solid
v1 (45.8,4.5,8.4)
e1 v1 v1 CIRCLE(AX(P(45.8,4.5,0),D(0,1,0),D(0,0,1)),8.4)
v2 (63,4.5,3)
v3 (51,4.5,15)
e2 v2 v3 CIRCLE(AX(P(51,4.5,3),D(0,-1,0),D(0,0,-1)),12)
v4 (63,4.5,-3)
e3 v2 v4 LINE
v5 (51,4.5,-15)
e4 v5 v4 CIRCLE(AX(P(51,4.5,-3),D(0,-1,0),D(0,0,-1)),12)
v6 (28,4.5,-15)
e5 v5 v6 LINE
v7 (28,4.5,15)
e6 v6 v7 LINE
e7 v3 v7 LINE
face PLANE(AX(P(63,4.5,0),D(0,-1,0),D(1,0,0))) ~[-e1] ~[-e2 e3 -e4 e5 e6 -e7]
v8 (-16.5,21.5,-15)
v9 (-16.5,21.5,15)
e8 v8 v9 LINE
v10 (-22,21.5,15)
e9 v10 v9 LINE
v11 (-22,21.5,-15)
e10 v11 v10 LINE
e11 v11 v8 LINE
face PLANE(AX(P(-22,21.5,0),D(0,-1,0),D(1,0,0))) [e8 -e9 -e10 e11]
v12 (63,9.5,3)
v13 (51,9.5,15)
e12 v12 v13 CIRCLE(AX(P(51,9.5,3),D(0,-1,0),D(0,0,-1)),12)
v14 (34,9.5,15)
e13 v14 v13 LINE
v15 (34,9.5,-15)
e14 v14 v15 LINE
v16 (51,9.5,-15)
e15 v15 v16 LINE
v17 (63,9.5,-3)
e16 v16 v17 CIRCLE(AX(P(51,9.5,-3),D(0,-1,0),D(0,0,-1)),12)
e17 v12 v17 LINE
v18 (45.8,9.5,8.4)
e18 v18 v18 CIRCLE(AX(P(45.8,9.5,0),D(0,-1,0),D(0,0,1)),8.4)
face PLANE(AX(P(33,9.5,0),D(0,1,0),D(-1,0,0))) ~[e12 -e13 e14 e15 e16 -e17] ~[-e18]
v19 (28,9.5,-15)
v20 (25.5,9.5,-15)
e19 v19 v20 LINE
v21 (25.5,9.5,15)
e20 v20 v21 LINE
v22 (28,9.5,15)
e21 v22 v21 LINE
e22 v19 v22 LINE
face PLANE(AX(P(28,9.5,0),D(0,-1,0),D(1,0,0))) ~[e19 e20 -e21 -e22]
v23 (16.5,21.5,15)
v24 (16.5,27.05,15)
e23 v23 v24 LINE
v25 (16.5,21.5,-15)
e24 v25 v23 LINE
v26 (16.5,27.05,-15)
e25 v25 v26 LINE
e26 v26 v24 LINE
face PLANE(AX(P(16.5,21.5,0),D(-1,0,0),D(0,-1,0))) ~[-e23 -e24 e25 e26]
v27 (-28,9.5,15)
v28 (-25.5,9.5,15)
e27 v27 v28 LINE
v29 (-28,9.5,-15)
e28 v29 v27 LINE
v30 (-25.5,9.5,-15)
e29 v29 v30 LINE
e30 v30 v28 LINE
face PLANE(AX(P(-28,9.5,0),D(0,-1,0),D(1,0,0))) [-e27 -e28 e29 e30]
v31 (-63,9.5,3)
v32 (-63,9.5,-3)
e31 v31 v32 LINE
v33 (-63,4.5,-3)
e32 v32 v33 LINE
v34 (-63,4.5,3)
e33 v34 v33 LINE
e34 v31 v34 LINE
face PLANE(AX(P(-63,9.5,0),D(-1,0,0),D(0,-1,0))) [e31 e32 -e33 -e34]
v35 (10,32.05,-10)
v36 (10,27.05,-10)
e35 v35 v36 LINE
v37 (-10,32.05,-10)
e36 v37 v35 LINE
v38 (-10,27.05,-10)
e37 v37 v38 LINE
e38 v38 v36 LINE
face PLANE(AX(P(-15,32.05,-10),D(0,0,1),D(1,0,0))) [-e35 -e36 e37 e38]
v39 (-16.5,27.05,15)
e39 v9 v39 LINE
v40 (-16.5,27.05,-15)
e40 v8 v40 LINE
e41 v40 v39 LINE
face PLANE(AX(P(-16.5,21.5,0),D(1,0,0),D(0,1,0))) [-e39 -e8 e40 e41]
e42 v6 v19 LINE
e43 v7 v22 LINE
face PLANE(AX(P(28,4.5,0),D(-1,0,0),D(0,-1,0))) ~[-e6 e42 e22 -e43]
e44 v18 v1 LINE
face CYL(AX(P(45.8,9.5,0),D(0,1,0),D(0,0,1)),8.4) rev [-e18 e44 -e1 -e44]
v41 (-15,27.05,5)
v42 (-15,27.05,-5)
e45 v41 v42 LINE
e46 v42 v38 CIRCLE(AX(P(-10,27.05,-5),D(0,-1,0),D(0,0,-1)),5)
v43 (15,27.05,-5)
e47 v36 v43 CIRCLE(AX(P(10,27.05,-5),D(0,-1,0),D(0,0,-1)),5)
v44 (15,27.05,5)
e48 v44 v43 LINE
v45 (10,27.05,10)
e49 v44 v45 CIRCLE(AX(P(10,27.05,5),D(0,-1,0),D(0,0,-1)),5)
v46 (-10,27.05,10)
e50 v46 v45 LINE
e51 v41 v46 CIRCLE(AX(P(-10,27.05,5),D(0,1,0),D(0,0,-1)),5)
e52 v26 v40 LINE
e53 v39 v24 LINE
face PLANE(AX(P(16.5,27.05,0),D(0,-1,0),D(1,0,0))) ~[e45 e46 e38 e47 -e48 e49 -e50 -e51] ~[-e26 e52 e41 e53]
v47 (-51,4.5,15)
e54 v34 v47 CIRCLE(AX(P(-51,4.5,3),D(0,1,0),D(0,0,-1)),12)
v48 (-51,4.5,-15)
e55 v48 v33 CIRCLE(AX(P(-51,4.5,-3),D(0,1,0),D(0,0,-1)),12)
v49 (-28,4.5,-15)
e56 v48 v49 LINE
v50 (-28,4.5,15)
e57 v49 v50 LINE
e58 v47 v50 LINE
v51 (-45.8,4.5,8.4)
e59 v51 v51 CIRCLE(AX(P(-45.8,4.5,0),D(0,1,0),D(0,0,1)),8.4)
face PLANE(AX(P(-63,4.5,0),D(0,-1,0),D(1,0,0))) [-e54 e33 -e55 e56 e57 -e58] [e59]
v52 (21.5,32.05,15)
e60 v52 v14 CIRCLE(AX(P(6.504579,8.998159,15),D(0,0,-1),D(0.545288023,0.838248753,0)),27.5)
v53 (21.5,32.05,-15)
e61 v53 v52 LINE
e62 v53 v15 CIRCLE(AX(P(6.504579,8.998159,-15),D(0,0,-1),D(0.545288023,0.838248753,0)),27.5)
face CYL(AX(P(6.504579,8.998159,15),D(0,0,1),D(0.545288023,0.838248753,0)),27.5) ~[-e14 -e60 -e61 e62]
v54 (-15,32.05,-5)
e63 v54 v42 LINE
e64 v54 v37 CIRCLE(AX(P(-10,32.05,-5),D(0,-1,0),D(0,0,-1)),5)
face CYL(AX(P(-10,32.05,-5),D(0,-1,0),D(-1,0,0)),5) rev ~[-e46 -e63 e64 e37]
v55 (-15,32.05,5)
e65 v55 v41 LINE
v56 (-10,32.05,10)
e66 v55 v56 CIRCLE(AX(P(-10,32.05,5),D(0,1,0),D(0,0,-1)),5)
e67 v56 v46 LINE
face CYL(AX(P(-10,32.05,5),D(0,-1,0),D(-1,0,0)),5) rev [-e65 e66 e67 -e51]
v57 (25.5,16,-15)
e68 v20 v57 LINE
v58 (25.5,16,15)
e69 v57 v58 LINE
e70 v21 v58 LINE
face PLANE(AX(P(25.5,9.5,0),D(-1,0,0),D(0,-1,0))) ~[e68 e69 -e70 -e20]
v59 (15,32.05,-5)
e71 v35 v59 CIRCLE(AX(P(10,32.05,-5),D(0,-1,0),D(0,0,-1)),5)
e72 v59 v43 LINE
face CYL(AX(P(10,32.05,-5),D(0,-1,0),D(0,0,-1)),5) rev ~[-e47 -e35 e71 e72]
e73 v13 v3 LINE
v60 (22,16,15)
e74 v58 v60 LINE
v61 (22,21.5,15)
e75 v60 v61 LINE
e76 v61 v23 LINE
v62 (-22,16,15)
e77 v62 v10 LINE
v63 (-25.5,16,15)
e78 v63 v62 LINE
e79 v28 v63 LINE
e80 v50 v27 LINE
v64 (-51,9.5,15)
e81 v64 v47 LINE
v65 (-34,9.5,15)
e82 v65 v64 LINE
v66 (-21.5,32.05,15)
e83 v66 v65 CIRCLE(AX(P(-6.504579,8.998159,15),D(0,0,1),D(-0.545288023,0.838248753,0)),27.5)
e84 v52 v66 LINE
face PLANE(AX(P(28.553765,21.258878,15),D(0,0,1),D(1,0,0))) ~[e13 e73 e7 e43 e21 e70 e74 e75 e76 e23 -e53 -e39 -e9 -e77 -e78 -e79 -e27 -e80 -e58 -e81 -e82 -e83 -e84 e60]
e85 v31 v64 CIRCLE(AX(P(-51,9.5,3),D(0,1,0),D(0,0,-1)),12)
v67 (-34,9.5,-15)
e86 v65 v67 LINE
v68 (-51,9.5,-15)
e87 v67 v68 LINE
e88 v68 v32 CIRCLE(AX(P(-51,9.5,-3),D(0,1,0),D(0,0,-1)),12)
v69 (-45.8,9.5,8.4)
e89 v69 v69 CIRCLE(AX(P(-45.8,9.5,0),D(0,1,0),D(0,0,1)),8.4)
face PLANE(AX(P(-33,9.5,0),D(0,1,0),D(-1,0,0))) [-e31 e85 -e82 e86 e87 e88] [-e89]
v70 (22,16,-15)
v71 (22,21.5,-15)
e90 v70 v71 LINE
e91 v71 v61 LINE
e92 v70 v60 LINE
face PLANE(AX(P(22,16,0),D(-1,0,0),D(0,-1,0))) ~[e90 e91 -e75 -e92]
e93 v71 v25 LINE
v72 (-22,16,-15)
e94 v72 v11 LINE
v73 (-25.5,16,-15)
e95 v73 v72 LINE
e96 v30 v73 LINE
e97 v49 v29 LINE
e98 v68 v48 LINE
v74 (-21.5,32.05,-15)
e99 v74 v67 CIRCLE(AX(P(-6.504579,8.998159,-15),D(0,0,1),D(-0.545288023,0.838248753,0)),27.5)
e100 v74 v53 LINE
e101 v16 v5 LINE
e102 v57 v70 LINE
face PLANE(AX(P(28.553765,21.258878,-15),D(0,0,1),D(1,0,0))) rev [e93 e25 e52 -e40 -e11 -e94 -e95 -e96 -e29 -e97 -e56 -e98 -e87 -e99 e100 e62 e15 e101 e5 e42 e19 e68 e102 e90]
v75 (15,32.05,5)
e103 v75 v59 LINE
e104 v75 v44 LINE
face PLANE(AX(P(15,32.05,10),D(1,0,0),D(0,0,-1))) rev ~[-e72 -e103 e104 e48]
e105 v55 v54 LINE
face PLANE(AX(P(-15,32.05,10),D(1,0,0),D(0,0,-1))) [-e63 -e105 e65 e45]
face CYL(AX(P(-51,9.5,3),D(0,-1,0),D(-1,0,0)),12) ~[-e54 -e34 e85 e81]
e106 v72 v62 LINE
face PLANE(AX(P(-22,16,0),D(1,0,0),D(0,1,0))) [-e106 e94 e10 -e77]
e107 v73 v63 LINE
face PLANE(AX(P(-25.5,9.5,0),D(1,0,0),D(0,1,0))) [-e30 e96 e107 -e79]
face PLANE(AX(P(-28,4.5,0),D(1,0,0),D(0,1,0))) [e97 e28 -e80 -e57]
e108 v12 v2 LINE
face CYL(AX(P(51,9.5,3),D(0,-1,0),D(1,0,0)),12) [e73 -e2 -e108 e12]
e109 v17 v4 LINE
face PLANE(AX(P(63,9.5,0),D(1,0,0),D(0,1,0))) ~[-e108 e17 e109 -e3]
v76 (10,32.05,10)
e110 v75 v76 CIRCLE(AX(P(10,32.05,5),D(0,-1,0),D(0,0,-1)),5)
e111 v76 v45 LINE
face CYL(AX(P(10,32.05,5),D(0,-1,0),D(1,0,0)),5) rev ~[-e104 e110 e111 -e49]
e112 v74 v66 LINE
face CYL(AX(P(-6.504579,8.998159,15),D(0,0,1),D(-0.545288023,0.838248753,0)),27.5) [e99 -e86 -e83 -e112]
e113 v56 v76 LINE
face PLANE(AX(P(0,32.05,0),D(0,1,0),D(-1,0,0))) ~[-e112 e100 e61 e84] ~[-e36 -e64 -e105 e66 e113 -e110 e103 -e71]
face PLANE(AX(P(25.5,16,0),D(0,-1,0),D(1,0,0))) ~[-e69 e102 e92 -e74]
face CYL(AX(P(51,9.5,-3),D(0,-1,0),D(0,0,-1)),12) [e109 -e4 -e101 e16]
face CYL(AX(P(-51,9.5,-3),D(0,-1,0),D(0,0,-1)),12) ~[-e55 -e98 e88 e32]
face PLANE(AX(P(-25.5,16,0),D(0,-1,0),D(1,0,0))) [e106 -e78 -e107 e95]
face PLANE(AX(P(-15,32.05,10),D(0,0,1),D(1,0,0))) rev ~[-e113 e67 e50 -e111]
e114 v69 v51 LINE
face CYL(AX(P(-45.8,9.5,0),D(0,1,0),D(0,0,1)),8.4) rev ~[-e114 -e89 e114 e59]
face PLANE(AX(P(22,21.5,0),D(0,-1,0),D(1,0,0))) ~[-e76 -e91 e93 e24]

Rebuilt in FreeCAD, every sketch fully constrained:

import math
import FreeCAD as App
import Part
import Sketcher

V = App.Vector
Q = App.Units.Quantity


def edges_at(feature, points):
    """Names of the edges that pass closest to the given points."""
    edges = feature.Shape.Edges
    near = lambda p: min(range(len(edges)), key=lambda i: edges[i].distToShape(Part.Vertex(*p))[0])
    return sorted({f"Edge{near(p) + 1}" for p in points})


def add_polygon(sketch, points):
    """Adds a closed chain of lines whose ends are joined by coincident constraints."""
    first, n = sketch.GeometryCount, len(points)
    for a, b in zip(points, points[1:] + points[:1]):
        sketch.addGeometry(Part.LineSegment(App.Vector(*a, 0), App.Vector(*b, 0)), False)
    for i in range(n):
        sketch.addConstraint(Sketcher.Constraint("Coincident", first + i, 2, first + (i + 1) % n, 1))

doc = App.newDocument("Part")
params = doc.addObject("Spreadsheet::Sheet", "Params")
for row, (alias, value) in enumerate([
    ("sketch1_width", "35 mm"),
    ("sketch1_width2", "30 mm"),
    ("sketch1_height", "5 mm"),
    ("sketch1_width3", "2.5 mm"),
    ("sketch1_width4", "3.5 mm"),
    ("pad1_length", "30 mm"),
    ("sketch2_diameter", "16.8 mm"),
    ("fillet_radius", "12 mm"),
    ("fillet2_radius", "12 mm"),
    ("sketch3_width", "30 mm"),
    ("sketch3_height", "20 mm"),
    ("sketch4_radius", "27.5 mm"),
    ("sketch4_width", "1 mm"),
    ("sketch4_height", "5 mm"),
    ("sketch4_width2", "2.5 mm"),
    ("sketch4_width3", "3.5 mm"),
    ("pad2_length", "30 mm"),
    ("fillet3_radius", "5 mm"),
], start=1):
    params.set(f"A{row}", alias)
    params.set(f"B{row}", "=" + value)
    params.setAlias(f"B{row}", alias)

body = doc.addObject("PartDesign::Body", "Body")

# Sketch on XY plane
sketch1 = body.newObject("Sketcher::SketchObject", "Sketch")
sketch1.AttachmentSupport = (doc.getObject("XY_Plane"), [""])
sketch1.MapMode = "FlatFace"
add_polygon(sketch1, [(-63, 4.5), (-28, 4.5), (-28, 9.5), (-25.5, 9.5), (-25.5, 16), (-22, 16), (-22, 21.5), (-16.5, 21.5), (-16.5, 27.1), (0, 27.1), (0, 32), (-21.5, 32), (-21.5, 26.5), (-27, 26.5), (-27, 21), (-30.5, 21), (-30.5, 14.5), (-33, 14.5), (-33, 9.5), (-63, 9.5)])  # lines 0-19
sketch1.addConstraint(Sketcher.Constraint("Horizontal", 0))
sketch1.addConstraint(Sketcher.Constraint("Vertical", 1))
sketch1.addConstraint(Sketcher.Constraint("Horizontal", 2))
sketch1.addConstraint(Sketcher.Constraint("Vertical", 3))
sketch1.addConstraint(Sketcher.Constraint("Horizontal", 4))
sketch1.addConstraint(Sketcher.Constraint("Vertical", 5))
sketch1.addConstraint(Sketcher.Constraint("Horizontal", 6))
sketch1.addConstraint(Sketcher.Constraint("Vertical", 7))
sketch1.addConstraint(Sketcher.Constraint("Horizontal", 8))
sketch1.addConstraint(Sketcher.Constraint("Vertical", 9))
sketch1.addConstraint(Sketcher.Constraint("Horizontal", 10))
sketch1.addConstraint(Sketcher.Constraint("Vertical", 11))
sketch1.addConstraint(Sketcher.Constraint("Horizontal", 12))
sketch1.addConstraint(Sketcher.Constraint("Vertical", 13))
sketch1.addConstraint(Sketcher.Constraint("Horizontal", 14))
sketch1.addConstraint(Sketcher.Constraint("Vertical", 15))
sketch1.addConstraint(Sketcher.Constraint("Horizontal", 16))
sketch1.addConstraint(Sketcher.Constraint("Vertical", 17))
sketch1.addConstraint(Sketcher.Constraint("Horizontal", 18))
sketch1.addConstraint(Sketcher.Constraint("Vertical", 19))
sketch1.addConstraint(Sketcher.Constraint("PointOnObject", 8, 2, -2))
sketch1.addConstraint(Sketcher.Constraint("Horizontal", 2, 2, 17, 2))
sketch1.addConstraint(Sketcher.Constraint("Equal", 6, 12))
sketch1.addConstraint(Sketcher.Constraint("Equal", 4, 14))
sketch1.addConstraint(Sketcher.Constraint("Equal", 2, 16))
sketch1.addConstraint(Sketcher.Constraint("Equal", 12, 5))
sketch1.addConstraint(Sketcher.Constraint("Equal", 1, 9))
sketch1.addConstraint(Sketcher.Constraint("Equal", 7, 11))
sketch1.addConstraint(Sketcher.Constraint("Equal", 5, 13))
sketch1.addConstraint(Sketcher.Constraint("Equal", 3, 15))
sketch1.addConstraint(Sketcher.Constraint("DistanceX", 0, 1, 0, 2, Q("35 mm")))
sketch1.addConstraint(Sketcher.Constraint("DistanceX", 18, 2, 18, 1, Q("30 mm")))
sketch1.addConstraint(Sketcher.Constraint("DistanceY", 1, 1, 1, 2, Q("5 mm")))
sketch1.addConstraint(Sketcher.Constraint("DistanceX", 2, 1, 2, 2, Q("2.5 mm")))
sketch1.addConstraint(Sketcher.Constraint("DistanceX", 4, 1, 4, 2, Q("3.5 mm")))
sketch1.addConstraint(Sketcher.Constraint("DistanceX", 6, 1, 6, 2, Q("5.5 mm")))
sketch1.addConstraint(Sketcher.Constraint("DistanceX", 8, 1, 8, 2, Q("16.5 mm")))
sketch1.addConstraint(Sketcher.Constraint("DistanceY", 3, 1, 3, 2, Q("6.5 mm")))
sketch1.addConstraint(Sketcher.Constraint("DistanceY", -1, 1, 3, 2, Q("16 mm")))
sketch1.addConstraint(Sketcher.Constraint("DistanceY", 7, 1, 7, 2, Q("5.55 mm")))
sketch1.setExpression("Constraints[50]", "Params.sketch1_width")
sketch1.setExpression("Constraints[51]", "Params.sketch1_width2")
sketch1.setExpression("Constraints[52]", "Params.sketch1_height")
sketch1.setExpression("Constraints[53]", "Params.sketch1_width3")
sketch1.setExpression("Constraints[54]", "Params.sketch1_width4")
pad1 = body.newObject("PartDesign::Pad", "Pad")
pad1.Profile = sketch1
pad1.setExpression("Length", "Params.pad1_length")
pad1.Midplane = True

# Sketch on XZ plane
sketch2 = body.newObject("Sketcher::SketchObject", "Sketch001")
sketch2.AttachmentSupport = (doc.getObject("XZ_Plane"), [""])
sketch2.MapMode = "FlatFace"
sketch2.AttachmentOffset = App.Placement(V(0, 0, -9.5), App.Rotation())
sketch2.addGeometry(Part.Circle(V(-46, 0, 0), V(0, 0, 1), 8), False)
sketch2.addConstraint(Sketcher.Constraint("PointOnObject", 0, 3, -1))
sketch2.addConstraint(Sketcher.Constraint("Diameter", 0, Q("16.8 mm")))
sketch2.addConstraint(Sketcher.Constraint("DistanceX", 0, 3, -1, 1, Q("45.8 mm")))
sketch2.setExpression("Constraints[1]", "Params.sketch2_diameter")
pocket1 = body.newObject("PartDesign::Pocket", "Pocket")
pocket1.Profile = sketch2
pocket1.Type = "ThroughAll"
pocket1.Reversed = True
doc.recompute()

fillet = body.newObject("PartDesign::Fillet", "Fillet")
fillet.Base = (pocket1, edges_at(pocket1, [(-63, 7, -15), (-63, 7, 15)]))
fillet.setExpression("Radius", "Params.fillet_radius")
doc.recompute()

mirrored = body.newObject("PartDesign::Mirrored", "Mirrored")
mirrored.Originals = [pad1, pocket1]
mirrored.MirrorPlane = (doc.getObject("YZ_Plane"), [""])
body.Tip = mirrored
doc.recompute()

fillet2 = body.newObject("PartDesign::Fillet", "Fillet001")
fillet2.Base = (mirrored, edges_at(mirrored, [(63, 7, -15), (63, 7, 15)]))
fillet2.setExpression("Radius", "Params.fillet2_radius")

# Sketch on XZ plane
sketch3 = body.newObject("Sketcher::SketchObject", "Sketch002")
sketch3.AttachmentSupport = (doc.getObject("XZ_Plane"), [""])
sketch3.MapMode = "FlatFace"
sketch3.AttachmentOffset = App.Placement(V(0, 0, -32.05), App.Rotation())
add_polygon(sketch3, [(-15, -10), (-15, 10), (15, 10), (15, -10)])  # lines 0-3
sketch3.addConstraint(Sketcher.Constraint("Vertical", 0))
sketch3.addConstraint(Sketcher.Constraint("Horizontal", 1))
sketch3.addConstraint(Sketcher.Constraint("Vertical", 2))
sketch3.addConstraint(Sketcher.Constraint("Horizontal", 3))
sketch3.addConstraint(Sketcher.Constraint("Symmetric", 0, 2, 2, 2, -1, 1))
sketch3.addConstraint(Sketcher.Constraint("DistanceX", 1, 1, 1, 2, Q("30 mm")))
sketch3.addConstraint(Sketcher.Constraint("DistanceY", 0, 1, 0, 2, Q("20 mm")))
sketch3.setExpression("Constraints[9]", "Params.sketch3_width")
sketch3.setExpression("Constraints[10]", "Params.sketch3_height")
pocket2 = body.newObject("PartDesign::Pocket", "Pocket001")
pocket2.Profile = sketch3
pocket2.Type = "ThroughAll"
pocket2.Reversed = True

# Sketch on XY plane
sketch4 = body.newObject("Sketcher::SketchObject", "Sketch003")
sketch4.AttachmentSupport = (doc.getObject("XY_Plane"), [""])
sketch4.MapMode = "FlatFace"
sketch4.AttachmentOffset = App.Placement(V(0, 0, 15), App.Rotation())
sketch4.addGeometry(Part.LineSegment(V(-21.5, 26.5, 0), V(-21.5, 32, 0)), False)
sketch4.addGeometry(Part.ArcOfCircle(Part.Circle(V(-6.5, 9, 0), V(0, 0, 1), 27.5), math.radians(123), math.radians(179)), False)
sketch4.addGeometry(Part.LineSegment(V(-34, 9.5, 0), V(-33, 9.5, 0)), False)
sketch4.addGeometry(Part.LineSegment(V(-33, 9.5, 0), V(-33, 14.5, 0)), False)
sketch4.addGeometry(Part.LineSegment(V(-33, 14.5, 0), V(-30.5, 14.5, 0)), False)
sketch4.addGeometry(Part.LineSegment(V(-30.5, 14.5, 0), V(-30.5, 21, 0)), False)
sketch4.addGeometry(Part.LineSegment(V(-30.5, 21, 0), V(-27, 21, 0)), False)
sketch4.addGeometry(Part.LineSegment(V(-27, 21, 0), V(-27, 26.5, 0)), False)
sketch4.addGeometry(Part.LineSegment(V(-27, 26.5, 0), V(-21.5, 26.5, 0)), False)
sketch4.addConstraint(Sketcher.Constraint("Coincident", 0, 2, 1, 1))
sketch4.addConstraint(Sketcher.Constraint("Coincident", 1, 2, 2, 1))
sketch4.addConstraint(Sketcher.Constraint("Coincident", 2, 2, 3, 1))
sketch4.addConstraint(Sketcher.Constraint("Coincident", 3, 2, 4, 1))
sketch4.addConstraint(Sketcher.Constraint("Coincident", 4, 2, 5, 1))
sketch4.addConstraint(Sketcher.Constraint("Coincident", 5, 2, 6, 1))
sketch4.addConstraint(Sketcher.Constraint("Coincident", 6, 2, 7, 1))
sketch4.addConstraint(Sketcher.Constraint("Coincident", 7, 2, 8, 1))
sketch4.addConstraint(Sketcher.Constraint("Coincident", 8, 2, 0, 1))
sketch4.addConstraint(Sketcher.Constraint("Vertical", 0))
sketch4.addConstraint(Sketcher.Constraint("Horizontal", 2))
sketch4.addConstraint(Sketcher.Constraint("Vertical", 3))
sketch4.addConstraint(Sketcher.Constraint("Horizontal", 4))
sketch4.addConstraint(Sketcher.Constraint("Vertical", 5))
sketch4.addConstraint(Sketcher.Constraint("Horizontal", 6))
sketch4.addConstraint(Sketcher.Constraint("Vertical", 7))
sketch4.addConstraint(Sketcher.Constraint("Horizontal", 8))
sketch4.addConstraint(Sketcher.Constraint("Equal", 8, 7))
sketch4.addConstraint(Sketcher.Constraint("Radius", 1, Q("27.5 mm")))
sketch4.addConstraint(Sketcher.Constraint("DistanceX", 2, 1, 2, 2, Q("1 mm")))
sketch4.addConstraint(Sketcher.Constraint("DistanceY", 3, 1, 3, 2, Q("5 mm")))
sketch4.addConstraint(Sketcher.Constraint("DistanceX", 4, 1, 4, 2, Q("2.5 mm")))
sketch4.addConstraint(Sketcher.Constraint("DistanceX", 6, 1, 6, 2, Q("3.5 mm")))
sketch4.addConstraint(Sketcher.Constraint("DistanceX", 8, 1, 8, 2, Q("5.5 mm")))
sketch4.addConstraint(Sketcher.Constraint("DistanceY", 5, 1, 5, 2, Q("6.5 mm")))
sketch4.addConstraint(Sketcher.Constraint("DistanceX", 1, 2, -1, 1, Q("34 mm")))
sketch4.addConstraint(Sketcher.Constraint("DistanceY", -1, 1, 5, 2, Q("21 mm")))
sketch4.addConstraint(Sketcher.Constraint("DistanceY", 0, 1, 0, 2, Q("5.55 mm")))
sketch4.setExpression("Constraints[18]", "Params.sketch4_radius")
sketch4.setExpression("Constraints[19]", "Params.sketch4_width")
sketch4.setExpression("Constraints[20]", "Params.sketch4_height")
sketch4.setExpression("Constraints[21]", "Params.sketch4_width2")
sketch4.setExpression("Constraints[22]", "Params.sketch4_width3")
pad2 = body.newObject("PartDesign::Pad", "Pad001")
pad2.Profile = sketch4
pad2.setExpression("Length", "Params.pad2_length")
pad2.Reversed = True
doc.recompute()

mirrored2 = body.newObject("PartDesign::Mirrored", "Mirrored001")
mirrored2.Originals = [pad2]
mirrored2.MirrorPlane = (doc.getObject("YZ_Plane"), [""])
body.Tip = mirrored2
doc.recompute()

fillet3 = body.newObject("PartDesign::Fillet", "Fillet002")
fillet3.Base = (mirrored2, edges_at(mirrored2, [
    (-15, 29.55, 10),
    (-15, 29.55, -10),
    (15, 29.55, -10),
    (15, 29.55, 10),
]))
fillet3.setExpression("Radius", "Params.fillet3_radius")

doc.recompute()
